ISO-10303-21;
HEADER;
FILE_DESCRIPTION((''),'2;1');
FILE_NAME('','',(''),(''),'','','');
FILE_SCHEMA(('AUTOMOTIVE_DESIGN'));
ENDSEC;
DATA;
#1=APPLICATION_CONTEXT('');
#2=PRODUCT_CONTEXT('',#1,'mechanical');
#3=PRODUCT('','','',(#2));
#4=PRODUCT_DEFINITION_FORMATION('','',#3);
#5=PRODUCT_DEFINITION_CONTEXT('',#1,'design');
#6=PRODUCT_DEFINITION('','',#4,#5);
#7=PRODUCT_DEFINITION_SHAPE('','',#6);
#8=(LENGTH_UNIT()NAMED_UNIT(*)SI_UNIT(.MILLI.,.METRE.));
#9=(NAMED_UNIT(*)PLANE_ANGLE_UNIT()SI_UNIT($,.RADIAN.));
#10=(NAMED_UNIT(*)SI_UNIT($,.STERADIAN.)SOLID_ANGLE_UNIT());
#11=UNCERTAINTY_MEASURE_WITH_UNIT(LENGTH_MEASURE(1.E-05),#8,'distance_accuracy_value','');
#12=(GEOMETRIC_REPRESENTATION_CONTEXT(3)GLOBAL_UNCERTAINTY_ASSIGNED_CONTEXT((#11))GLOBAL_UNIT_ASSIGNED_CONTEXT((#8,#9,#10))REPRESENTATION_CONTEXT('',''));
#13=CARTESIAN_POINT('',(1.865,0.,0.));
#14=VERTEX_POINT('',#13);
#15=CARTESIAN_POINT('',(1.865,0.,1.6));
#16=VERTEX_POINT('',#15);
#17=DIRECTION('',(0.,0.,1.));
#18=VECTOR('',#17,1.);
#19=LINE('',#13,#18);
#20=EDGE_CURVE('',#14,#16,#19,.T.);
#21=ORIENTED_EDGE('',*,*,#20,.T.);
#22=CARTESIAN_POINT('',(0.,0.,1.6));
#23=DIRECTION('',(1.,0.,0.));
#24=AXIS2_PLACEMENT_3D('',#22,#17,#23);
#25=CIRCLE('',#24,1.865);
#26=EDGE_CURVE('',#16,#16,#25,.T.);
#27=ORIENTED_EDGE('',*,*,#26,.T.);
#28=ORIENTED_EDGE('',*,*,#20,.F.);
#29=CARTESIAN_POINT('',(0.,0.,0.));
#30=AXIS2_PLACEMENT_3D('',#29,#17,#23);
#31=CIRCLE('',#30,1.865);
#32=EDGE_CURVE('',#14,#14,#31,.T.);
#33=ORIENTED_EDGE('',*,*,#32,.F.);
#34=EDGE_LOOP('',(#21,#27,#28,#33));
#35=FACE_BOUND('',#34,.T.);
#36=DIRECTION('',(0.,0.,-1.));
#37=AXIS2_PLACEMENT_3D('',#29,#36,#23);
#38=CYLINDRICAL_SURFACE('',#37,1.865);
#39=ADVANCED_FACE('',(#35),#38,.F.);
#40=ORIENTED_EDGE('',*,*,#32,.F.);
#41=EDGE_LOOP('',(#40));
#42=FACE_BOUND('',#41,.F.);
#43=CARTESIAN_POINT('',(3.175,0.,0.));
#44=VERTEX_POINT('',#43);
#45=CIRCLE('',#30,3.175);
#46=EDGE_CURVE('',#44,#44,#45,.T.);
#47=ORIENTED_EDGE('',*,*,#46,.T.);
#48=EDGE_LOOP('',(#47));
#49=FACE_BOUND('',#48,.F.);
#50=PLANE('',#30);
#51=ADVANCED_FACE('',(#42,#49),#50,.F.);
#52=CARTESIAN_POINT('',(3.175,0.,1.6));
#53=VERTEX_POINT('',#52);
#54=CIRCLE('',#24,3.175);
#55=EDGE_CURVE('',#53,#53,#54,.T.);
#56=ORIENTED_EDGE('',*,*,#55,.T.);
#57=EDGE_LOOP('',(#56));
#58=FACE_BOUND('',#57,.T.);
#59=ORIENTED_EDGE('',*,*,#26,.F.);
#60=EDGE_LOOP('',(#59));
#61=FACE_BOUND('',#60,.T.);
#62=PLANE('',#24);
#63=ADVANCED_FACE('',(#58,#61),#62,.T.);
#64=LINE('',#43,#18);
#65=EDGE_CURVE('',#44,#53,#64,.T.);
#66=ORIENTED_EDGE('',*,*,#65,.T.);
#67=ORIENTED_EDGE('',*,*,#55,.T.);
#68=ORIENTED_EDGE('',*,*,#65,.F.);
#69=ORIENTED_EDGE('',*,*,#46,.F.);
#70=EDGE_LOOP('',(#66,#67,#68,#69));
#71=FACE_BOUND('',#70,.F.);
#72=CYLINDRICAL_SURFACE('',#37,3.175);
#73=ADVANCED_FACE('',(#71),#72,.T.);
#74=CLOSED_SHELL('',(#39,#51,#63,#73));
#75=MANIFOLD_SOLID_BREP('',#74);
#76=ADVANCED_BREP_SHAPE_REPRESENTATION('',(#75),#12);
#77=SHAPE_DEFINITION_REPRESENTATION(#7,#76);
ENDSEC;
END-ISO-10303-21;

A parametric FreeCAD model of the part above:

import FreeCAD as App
import Part
import Sketcher
Q = App.Units.Quantity

doc = App.newDocument("Part")
body = doc.addObject("PartDesign::Body", "Body")

# Sketch on XY plane
sketch1 = doc.addObject("Sketcher::SketchObject", "Sketch")
body.addObject(sketch1)
sketch1.AttachmentSupport = (doc.XY_Plane, [""])
sketch1.MapMode = "FlatFace"
sketch1.addGeometry([
    Part.Circle(App.Vector(0, 0, 0), App.Vector(0, 0, 1), 3.175),
    Part.Circle(App.Vector(0, 0, 0), App.Vector(0, 0, 1), 1.865),
], False)
sketch1.addConstraint([
    Sketcher.Constraint("Coincident", 0, 3, -1, 1),
    Sketcher.Constraint("Coincident", 1, 3, -1, 1),
    Sketcher.Constraint("Diameter", 0, Q("0.25 in")),
    Sketcher.Constraint("Diameter", 1, Q("3.73 mm")),
])
pad1 = doc.addObject("PartDesign::Pad", "Pad")
body.addObject(pad1)
pad1.Profile = sketch1
pad1.Length = Q("0.0629921 in")

doc.recompute()
